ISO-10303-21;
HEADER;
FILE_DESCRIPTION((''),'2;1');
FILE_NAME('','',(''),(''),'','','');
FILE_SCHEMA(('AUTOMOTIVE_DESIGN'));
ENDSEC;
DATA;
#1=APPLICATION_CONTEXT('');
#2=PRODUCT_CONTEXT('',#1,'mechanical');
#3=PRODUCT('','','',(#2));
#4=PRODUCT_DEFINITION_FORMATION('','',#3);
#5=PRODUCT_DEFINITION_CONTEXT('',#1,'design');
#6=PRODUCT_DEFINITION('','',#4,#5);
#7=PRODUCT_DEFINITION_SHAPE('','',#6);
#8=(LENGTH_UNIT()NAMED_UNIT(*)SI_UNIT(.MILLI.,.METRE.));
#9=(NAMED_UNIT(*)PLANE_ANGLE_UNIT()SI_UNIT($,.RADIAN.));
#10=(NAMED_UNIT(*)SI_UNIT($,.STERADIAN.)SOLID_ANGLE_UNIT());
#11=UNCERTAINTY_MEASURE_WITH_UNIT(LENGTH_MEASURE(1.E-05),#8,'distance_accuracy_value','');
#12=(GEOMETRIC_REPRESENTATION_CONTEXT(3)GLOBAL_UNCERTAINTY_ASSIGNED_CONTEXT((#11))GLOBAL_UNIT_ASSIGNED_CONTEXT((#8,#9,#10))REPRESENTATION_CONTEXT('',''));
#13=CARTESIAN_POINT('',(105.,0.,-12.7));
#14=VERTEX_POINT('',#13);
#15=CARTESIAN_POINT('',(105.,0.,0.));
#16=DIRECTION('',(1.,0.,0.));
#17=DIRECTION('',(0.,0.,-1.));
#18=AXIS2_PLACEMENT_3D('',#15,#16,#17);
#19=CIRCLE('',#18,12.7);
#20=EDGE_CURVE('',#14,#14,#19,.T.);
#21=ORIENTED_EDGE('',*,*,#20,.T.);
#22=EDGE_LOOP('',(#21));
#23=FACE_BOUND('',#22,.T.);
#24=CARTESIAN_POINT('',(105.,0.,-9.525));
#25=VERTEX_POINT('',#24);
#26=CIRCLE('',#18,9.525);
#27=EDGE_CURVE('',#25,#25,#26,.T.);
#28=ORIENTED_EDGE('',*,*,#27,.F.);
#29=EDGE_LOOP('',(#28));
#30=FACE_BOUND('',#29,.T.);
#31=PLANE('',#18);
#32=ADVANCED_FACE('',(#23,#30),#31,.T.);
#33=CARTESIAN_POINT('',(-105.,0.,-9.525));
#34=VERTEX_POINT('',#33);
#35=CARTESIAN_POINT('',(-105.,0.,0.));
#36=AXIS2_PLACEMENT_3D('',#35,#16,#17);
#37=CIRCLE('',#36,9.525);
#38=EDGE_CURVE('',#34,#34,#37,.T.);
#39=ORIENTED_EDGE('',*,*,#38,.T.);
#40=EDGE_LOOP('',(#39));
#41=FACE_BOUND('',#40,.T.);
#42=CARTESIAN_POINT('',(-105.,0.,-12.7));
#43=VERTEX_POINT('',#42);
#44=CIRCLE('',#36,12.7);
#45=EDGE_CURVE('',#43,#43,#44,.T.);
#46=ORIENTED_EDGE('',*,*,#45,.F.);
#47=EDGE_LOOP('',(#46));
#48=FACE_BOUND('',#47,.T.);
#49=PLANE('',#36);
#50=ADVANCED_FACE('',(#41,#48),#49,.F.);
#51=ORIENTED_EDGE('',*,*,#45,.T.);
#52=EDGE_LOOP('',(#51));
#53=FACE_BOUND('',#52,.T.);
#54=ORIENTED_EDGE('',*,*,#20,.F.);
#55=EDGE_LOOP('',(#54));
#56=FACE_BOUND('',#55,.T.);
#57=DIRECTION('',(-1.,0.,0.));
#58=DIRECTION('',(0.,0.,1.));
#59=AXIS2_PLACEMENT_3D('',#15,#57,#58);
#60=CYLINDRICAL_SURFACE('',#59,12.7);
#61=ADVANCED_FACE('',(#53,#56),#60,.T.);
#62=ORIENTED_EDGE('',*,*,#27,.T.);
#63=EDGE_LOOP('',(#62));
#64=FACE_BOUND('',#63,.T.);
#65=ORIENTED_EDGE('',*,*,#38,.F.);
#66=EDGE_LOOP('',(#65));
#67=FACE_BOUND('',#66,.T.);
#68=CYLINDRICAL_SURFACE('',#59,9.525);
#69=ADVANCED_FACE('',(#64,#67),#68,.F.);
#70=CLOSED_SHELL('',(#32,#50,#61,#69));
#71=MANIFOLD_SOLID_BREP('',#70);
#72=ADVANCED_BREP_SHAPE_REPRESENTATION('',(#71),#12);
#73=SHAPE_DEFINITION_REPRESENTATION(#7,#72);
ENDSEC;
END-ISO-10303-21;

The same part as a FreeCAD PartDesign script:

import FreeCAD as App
import Part
import Sketcher
Q = App.Units.Quantity

doc = App.newDocument("Part")
body = doc.addObject("PartDesign::Body", "Body")

sketch1 = body.newObject("Sketcher::SketchObject", "Sketch")
sketch1.AttachmentSupport = (doc.getObject("YZ_Plane"), [""])
sketch1.MapMode = "FlatFace"
sketch1.addGeometry([
    Part.Circle(App.Vector(0, 0, 0), App.Vector(0, 0, 1), 13),
    Part.Circle(App.Vector(0, 0, 0), App.Vector(0, 0, 1), 10),
], False)
sketch1.addConstraint([
    Sketcher.Constraint("Coincident", 0, 3, -1, 1),
    Sketcher.Constraint("Coincident", 1, 3, -1, 1),
    Sketcher.Constraint("Diameter", 0, Q("1 in")),
    Sketcher.Constraint("Diameter", 1, Q("0.75 in")),
])
pad1 = body.newObject("PartDesign::Pad", "Pad")
pad1.Profile = sketch1
pad1.Length = 210
pad1.Midplane = True

doc.recompute()
